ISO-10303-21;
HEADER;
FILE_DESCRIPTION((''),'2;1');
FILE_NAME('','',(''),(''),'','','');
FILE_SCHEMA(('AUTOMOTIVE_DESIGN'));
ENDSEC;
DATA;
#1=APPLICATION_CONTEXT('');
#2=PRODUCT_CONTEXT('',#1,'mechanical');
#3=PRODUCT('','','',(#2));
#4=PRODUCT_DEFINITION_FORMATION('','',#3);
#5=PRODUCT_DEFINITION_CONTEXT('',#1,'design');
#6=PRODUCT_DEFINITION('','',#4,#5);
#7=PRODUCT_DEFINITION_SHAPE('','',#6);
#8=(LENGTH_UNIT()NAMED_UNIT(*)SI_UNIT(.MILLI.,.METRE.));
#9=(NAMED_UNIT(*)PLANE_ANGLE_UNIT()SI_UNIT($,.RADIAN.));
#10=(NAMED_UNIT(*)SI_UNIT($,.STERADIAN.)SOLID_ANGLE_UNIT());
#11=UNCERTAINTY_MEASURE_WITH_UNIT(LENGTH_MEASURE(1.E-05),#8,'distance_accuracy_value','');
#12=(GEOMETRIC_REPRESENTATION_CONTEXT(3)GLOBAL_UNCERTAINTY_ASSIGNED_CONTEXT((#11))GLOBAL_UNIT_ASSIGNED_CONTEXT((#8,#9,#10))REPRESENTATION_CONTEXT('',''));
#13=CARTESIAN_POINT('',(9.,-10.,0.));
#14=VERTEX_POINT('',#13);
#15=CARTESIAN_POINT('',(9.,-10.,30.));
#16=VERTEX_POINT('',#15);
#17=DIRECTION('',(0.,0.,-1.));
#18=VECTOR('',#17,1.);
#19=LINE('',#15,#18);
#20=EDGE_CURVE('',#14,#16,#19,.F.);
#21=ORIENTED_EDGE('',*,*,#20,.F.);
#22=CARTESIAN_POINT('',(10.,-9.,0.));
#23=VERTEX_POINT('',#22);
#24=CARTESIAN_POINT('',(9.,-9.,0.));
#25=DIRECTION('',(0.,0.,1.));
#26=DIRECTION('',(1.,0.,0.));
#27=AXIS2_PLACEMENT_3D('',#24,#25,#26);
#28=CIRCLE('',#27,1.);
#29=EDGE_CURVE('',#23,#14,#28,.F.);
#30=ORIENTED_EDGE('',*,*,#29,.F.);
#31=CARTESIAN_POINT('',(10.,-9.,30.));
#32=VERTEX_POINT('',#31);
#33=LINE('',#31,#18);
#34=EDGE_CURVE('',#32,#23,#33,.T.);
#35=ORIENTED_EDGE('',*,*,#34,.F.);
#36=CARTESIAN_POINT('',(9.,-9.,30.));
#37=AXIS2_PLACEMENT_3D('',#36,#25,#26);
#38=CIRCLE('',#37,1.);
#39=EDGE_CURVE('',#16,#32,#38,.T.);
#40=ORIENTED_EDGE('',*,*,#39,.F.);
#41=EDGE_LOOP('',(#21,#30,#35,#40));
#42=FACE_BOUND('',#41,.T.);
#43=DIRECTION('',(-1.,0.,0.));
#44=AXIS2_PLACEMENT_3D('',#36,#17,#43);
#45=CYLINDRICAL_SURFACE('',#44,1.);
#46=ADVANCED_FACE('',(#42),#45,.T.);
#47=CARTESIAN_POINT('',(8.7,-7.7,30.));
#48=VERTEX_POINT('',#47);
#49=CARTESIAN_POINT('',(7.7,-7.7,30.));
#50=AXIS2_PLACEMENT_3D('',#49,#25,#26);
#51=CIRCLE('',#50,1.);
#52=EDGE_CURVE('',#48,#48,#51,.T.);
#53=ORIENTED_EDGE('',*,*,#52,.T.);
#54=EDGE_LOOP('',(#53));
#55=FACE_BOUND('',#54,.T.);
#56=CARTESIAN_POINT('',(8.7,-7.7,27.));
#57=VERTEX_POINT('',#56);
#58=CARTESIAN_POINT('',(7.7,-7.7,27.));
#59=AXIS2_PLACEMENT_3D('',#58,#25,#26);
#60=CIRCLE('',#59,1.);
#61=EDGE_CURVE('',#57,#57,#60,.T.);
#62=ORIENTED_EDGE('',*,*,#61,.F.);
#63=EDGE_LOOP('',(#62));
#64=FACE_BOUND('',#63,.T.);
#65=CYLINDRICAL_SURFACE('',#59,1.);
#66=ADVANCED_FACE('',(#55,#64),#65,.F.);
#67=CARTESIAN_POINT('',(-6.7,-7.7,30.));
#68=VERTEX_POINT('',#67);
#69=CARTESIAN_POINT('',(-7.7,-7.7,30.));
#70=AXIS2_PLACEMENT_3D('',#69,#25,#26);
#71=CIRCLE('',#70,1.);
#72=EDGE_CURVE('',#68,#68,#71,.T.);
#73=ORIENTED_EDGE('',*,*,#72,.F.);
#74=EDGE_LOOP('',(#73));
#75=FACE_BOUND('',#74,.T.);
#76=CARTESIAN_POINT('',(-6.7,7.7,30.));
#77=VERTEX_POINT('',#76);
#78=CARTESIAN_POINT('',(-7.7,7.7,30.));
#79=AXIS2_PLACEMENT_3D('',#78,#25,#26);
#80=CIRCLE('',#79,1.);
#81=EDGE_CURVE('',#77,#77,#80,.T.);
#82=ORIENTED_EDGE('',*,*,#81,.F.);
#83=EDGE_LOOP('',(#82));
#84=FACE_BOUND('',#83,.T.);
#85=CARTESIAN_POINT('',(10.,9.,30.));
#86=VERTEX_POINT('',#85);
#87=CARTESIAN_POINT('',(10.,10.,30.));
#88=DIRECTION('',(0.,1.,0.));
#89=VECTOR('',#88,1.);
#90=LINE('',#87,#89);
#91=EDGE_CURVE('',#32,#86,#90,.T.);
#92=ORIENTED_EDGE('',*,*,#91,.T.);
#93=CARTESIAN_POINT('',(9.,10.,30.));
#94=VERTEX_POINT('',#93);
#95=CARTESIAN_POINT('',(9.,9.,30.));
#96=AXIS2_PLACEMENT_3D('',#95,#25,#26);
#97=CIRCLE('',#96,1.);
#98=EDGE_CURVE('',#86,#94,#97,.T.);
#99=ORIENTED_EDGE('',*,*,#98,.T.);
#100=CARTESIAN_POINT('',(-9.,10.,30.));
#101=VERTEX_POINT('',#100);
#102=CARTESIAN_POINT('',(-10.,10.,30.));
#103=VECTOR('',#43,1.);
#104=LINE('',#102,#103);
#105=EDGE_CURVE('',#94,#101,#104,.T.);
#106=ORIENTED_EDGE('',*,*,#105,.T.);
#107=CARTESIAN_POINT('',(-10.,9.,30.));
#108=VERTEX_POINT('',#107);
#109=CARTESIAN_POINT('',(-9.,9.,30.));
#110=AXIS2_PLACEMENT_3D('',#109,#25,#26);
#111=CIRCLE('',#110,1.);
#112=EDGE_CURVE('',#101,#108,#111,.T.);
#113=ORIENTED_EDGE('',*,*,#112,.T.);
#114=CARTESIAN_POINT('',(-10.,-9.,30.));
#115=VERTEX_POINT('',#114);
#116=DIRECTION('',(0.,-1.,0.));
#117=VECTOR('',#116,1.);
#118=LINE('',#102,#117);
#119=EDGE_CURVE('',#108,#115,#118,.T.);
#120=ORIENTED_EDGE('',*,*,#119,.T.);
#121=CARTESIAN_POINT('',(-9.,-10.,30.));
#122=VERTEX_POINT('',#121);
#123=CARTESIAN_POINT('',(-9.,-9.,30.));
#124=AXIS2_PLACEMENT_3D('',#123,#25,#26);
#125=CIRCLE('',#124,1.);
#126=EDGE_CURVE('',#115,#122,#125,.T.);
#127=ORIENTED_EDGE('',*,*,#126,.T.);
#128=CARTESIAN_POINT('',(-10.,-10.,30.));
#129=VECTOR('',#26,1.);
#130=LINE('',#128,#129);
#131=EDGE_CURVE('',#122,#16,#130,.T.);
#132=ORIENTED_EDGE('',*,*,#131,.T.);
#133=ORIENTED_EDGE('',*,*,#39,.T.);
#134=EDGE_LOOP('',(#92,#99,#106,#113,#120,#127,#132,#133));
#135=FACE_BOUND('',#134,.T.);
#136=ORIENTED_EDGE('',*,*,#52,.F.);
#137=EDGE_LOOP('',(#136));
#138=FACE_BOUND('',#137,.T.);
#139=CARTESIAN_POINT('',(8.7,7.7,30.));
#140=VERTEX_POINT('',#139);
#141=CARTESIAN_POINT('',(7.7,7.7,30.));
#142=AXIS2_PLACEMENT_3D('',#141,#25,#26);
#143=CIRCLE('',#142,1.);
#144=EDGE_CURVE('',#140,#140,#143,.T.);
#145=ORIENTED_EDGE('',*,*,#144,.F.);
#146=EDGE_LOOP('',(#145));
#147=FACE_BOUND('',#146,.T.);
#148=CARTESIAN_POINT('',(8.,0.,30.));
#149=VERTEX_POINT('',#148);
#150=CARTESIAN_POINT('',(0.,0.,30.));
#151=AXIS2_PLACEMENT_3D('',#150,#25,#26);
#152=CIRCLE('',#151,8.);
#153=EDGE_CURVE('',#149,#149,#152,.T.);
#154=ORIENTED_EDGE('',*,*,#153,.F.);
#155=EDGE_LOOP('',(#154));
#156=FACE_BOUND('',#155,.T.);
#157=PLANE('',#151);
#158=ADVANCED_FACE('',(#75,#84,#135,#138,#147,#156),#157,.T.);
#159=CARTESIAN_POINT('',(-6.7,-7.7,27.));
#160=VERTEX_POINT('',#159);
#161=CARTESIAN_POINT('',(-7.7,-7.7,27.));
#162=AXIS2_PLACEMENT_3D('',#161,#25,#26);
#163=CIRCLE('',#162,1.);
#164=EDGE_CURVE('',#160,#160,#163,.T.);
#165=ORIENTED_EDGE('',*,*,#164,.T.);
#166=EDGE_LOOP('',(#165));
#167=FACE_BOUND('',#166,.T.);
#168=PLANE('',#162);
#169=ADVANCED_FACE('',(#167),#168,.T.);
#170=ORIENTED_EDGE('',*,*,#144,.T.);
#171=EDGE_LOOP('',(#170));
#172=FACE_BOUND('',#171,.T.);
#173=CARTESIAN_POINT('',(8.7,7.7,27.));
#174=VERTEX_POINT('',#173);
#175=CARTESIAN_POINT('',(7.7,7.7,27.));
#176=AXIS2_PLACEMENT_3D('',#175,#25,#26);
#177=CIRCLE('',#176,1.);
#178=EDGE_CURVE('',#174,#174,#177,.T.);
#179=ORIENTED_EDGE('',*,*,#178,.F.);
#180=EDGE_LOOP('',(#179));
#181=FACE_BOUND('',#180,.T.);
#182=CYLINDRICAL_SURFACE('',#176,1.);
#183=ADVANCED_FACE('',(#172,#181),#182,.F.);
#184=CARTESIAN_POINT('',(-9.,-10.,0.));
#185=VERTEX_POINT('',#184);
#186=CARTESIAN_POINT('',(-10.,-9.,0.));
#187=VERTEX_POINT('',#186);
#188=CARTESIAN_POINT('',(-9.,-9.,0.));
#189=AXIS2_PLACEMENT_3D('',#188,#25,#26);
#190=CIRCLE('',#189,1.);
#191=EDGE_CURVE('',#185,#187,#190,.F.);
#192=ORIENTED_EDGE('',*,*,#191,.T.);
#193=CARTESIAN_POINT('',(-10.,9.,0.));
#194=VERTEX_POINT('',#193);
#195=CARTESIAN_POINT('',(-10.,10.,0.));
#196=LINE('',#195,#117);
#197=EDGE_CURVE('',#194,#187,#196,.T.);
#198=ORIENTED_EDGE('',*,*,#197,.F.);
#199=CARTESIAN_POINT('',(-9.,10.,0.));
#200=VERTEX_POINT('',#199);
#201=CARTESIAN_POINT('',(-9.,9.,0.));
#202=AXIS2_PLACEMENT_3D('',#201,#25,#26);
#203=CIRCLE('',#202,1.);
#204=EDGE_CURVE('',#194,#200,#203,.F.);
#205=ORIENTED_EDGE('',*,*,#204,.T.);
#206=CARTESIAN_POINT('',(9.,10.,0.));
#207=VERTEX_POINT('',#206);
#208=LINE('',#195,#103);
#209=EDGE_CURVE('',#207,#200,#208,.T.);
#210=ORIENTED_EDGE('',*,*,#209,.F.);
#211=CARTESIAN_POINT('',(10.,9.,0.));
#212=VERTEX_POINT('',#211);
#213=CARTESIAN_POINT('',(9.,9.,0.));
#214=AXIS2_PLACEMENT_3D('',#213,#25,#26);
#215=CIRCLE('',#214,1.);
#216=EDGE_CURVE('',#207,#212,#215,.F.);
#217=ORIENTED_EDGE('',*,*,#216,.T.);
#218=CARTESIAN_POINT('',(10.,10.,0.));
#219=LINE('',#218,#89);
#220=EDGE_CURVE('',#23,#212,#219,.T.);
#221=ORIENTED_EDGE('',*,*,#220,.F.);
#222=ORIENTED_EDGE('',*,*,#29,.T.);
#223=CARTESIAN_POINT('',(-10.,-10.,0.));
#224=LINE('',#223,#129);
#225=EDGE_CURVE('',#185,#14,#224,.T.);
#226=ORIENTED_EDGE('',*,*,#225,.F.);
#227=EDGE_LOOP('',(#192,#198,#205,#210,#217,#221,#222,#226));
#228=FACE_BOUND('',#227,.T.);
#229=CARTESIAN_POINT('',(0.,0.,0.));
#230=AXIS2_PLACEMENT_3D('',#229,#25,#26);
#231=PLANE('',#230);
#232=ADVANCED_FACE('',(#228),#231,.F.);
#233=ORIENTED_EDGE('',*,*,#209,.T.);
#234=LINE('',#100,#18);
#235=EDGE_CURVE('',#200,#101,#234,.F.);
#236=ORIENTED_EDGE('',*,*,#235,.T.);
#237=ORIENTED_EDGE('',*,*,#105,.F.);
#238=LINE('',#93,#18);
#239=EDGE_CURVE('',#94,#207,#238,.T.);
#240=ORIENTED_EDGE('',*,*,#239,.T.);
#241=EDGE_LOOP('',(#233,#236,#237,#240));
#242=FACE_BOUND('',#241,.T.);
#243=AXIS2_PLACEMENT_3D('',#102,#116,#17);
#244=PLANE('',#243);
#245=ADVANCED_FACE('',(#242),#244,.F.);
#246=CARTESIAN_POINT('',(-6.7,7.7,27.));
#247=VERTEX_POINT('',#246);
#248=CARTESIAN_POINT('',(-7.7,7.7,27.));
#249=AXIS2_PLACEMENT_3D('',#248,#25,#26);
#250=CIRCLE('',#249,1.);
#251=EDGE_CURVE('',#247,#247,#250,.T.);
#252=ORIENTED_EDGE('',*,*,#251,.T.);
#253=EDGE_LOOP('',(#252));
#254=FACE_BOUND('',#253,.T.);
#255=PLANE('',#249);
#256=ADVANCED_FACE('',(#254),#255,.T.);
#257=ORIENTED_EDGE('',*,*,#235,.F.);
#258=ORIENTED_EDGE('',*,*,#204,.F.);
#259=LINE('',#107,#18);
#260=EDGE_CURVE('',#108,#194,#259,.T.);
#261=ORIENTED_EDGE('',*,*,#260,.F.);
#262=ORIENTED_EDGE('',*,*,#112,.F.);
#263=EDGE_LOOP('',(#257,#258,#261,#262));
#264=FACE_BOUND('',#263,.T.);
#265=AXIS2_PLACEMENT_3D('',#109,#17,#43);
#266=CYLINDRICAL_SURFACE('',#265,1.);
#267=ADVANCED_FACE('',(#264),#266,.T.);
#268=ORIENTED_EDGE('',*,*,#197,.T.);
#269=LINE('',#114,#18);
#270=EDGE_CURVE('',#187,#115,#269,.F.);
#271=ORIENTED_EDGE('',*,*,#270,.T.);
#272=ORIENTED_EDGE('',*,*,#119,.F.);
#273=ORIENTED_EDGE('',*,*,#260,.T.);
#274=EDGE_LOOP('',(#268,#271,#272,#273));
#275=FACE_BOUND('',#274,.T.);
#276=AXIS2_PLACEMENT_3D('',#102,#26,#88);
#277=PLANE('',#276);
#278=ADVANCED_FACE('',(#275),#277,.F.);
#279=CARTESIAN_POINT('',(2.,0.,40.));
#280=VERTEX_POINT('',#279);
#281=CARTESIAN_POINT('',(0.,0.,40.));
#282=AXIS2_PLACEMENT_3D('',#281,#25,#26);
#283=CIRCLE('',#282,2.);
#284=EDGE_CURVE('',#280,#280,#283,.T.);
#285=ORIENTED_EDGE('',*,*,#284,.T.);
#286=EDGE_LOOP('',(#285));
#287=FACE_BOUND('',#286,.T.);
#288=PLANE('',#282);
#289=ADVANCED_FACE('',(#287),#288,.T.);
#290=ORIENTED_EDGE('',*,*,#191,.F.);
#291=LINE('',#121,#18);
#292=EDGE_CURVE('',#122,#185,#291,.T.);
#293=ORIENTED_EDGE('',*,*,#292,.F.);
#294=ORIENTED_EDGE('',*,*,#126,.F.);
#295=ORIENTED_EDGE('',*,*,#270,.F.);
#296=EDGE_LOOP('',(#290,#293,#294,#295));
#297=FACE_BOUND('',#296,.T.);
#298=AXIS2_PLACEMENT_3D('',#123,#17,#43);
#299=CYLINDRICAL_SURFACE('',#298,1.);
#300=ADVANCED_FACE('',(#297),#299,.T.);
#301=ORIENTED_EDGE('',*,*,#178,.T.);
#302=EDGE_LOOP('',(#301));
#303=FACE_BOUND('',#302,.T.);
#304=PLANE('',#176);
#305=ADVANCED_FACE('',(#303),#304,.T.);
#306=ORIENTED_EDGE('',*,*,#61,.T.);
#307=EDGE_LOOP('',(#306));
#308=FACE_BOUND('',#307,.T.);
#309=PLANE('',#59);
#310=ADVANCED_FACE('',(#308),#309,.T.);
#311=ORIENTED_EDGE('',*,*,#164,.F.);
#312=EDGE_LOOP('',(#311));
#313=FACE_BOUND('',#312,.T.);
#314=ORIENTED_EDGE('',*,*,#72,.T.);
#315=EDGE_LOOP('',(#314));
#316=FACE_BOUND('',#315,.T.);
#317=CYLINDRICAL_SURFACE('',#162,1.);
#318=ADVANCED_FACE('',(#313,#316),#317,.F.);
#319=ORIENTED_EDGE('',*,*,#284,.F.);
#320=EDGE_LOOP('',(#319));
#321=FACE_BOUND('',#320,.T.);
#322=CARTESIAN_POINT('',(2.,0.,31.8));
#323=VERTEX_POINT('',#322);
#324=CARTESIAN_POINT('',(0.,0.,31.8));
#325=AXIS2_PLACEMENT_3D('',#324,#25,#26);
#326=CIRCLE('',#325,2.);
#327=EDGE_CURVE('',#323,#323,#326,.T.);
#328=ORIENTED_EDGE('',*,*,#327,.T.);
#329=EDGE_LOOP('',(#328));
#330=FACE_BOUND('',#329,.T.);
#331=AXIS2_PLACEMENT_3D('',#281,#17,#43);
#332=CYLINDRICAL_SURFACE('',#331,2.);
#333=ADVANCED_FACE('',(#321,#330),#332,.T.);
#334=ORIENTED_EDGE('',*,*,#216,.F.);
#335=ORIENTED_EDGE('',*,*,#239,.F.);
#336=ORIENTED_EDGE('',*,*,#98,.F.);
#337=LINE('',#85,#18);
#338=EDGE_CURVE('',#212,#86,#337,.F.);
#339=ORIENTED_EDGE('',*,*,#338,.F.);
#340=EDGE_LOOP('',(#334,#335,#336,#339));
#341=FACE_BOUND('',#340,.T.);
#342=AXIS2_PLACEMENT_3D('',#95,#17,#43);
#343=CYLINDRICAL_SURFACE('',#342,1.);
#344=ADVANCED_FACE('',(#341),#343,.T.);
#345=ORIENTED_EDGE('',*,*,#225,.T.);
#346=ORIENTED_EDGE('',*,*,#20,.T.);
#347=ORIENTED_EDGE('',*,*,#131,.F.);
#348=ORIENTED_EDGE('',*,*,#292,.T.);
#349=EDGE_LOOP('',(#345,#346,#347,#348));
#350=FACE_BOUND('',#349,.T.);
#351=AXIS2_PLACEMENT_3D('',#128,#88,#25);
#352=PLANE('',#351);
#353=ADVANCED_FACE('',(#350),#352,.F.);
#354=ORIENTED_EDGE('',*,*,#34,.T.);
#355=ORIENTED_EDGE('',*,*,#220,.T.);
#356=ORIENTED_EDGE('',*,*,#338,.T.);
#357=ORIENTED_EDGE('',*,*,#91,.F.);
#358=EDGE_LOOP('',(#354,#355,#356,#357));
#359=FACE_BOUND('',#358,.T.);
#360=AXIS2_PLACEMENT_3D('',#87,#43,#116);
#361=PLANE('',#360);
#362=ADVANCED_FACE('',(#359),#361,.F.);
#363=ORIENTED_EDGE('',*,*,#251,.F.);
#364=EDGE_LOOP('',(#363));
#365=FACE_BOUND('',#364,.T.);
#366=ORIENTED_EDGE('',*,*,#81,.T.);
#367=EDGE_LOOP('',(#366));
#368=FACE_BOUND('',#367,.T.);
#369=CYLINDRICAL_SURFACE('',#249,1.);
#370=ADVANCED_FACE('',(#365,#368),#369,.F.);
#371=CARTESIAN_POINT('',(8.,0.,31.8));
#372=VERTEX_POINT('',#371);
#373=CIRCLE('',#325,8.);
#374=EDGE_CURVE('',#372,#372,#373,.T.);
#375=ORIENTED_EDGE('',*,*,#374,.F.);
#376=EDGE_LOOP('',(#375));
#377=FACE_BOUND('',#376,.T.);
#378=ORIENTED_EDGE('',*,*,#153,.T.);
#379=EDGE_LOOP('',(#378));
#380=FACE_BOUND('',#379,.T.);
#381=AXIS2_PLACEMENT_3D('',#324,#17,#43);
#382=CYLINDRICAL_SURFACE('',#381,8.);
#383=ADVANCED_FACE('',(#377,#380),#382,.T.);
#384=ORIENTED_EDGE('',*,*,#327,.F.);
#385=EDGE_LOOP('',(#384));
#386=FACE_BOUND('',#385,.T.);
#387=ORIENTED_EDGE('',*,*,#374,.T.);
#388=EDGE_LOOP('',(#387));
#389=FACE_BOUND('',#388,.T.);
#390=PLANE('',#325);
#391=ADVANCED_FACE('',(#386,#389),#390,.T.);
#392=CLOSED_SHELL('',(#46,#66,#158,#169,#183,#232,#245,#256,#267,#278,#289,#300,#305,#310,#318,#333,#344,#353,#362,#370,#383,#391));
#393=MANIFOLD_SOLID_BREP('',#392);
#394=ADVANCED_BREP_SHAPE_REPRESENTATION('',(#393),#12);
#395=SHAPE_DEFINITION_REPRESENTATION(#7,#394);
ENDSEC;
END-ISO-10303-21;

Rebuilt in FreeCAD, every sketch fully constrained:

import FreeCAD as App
import Part
import Sketcher
from FreeCAD import Vector
Q = App.Units.Quantity


def edges_at(feature, points):
    """Names of the edges that pass closest to the given points."""
    edges = feature.Shape.Edges
    near = lambda p: min(range(len(edges)), key=lambda i: edges[i].distToShape(Part.Vertex(*p))[0])
    return sorted({f"Edge{near(p) + 1}" for p in points})

doc = App.newDocument("Part")
body = doc.addObject("PartDesign::Body", "Body")

sketch1 = body.newObject("Sketcher::SketchObject", "Sketch")
sketch1.AttachmentSupport = (doc.getObject("XY_Plane"), [""])
sketch1.MapMode = "FlatFace"
sketch1.addGeometry(Part.LineSegment(Vector(-10, 10, 0), Vector(-10, -10, 0)), False)
sketch1.addGeometry(Part.LineSegment(Vector(-10, -10, 0), Vector(10, -10, 0)), False)
sketch1.addGeometry(Part.LineSegment(Vector(10, -10, 0), Vector(10, 10, 0)), False)
sketch1.addGeometry(Part.LineSegment(Vector(10, 10, 0), Vector(-10, 10, 0)), False)
sketch1.addConstraint(Sketcher.Constraint("Coincident", 0, 2, 1, 1))
sketch1.addConstraint(Sketcher.Constraint("Coincident", 1, 2, 2, 1))
sketch1.addConstraint(Sketcher.Constraint("Coincident", 2, 2, 3, 1))
sketch1.addConstraint(Sketcher.Constraint("Coincident", 3, 2, 0, 1))
sketch1.addConstraint(Sketcher.Constraint("Vertical", 0))
sketch1.addConstraint(Sketcher.Constraint("Horizontal", 1))
sketch1.addConstraint(Sketcher.Constraint("Vertical", 2))
sketch1.addConstraint(Sketcher.Constraint("Horizontal", 3))
sketch1.addConstraint(Sketcher.Constraint("Symmetric", 0, 2, 2, 2, -1, 1))
sketch1.addConstraint(Sketcher.Constraint("Equal", 3, 0))
sketch1.addConstraint(Sketcher.Constraint("DistanceX", 1, 1, 1, 2, Q("20 mm")))
pad1 = body.newObject("PartDesign::Pad", "Pad")
pad1.Profile = sketch1
pad1.Length = 30
doc.recompute()

fillet = body.newObject("PartDesign::Fillet", "Fillet")
fillet.Base = (pad1, edges_at(pad1, [
    (10, -10, 15),
    (-10, -10, 15),
    (-10, 10, 15),
    (10, 10, 15),
]))
fillet.Radius = 1

sketch2 = body.newObject("Sketcher::SketchObject", "Sketch001")
sketch2.AttachmentSupport = (doc.getObject("XY_Plane"), [""])
sketch2.MapMode = "FlatFace"
sketch2.AttachmentOffset = App.Placement(Vector(0, 0, 30), App.Rotation())
sketch2.addGeometry(Part.Circle(Vector(0, 0, 0), Vector(0, 0, 1), 8), False)
sketch2.addConstraint(Sketcher.Constraint("Coincident", 0, 3, -1, 1))
sketch2.addConstraint(Sketcher.Constraint("Diameter", 0, Q("16 mm")))
pad2 = body.newObject("PartDesign::Pad", "Pad001")
pad2.Profile = sketch2
pad2.Length = 1.8

sketch3 = body.newObject("Sketcher::SketchObject", "Sketch002")
sketch3.AttachmentSupport = (doc.getObject("XY_Plane"), [""])
sketch3.MapMode = "FlatFace"
sketch3.AttachmentOffset = App.Placement(Vector(0, 0, 31.8), App.Rotation())
sketch3.addGeometry(Part.Circle(Vector(0, 0, 0), Vector(0, 0, 1), 2), False)
sketch3.addConstraint(Sketcher.Constraint("Coincident", 0, 3, -1, 1))
sketch3.addConstraint(Sketcher.Constraint("Diameter", 0, Q("4 mm")))
pad3 = body.newObject("PartDesign::Pad", "Pad002")
pad3.Profile = sketch3
pad3.Length = 8.2

sketch4 = body.newObject("Sketcher::SketchObject", "Sketch003")
sketch4.AttachmentSupport = (doc.getObject("XY_Plane"), [""])
sketch4.MapMode = "FlatFace"
sketch4.AttachmentOffset = App.Placement(Vector(0, 0, 30), App.Rotation())
sketch4.addGeometry(Part.Circle(Vector(-7.7, 7.7, 0), Vector(0, 0, 1), 1), False)
sketch4.addGeometry(Part.Circle(Vector(7.7, 7.7, 0), Vector(0, 0, 1), 1), False)
sketch4.addGeometry(Part.Circle(Vector(7.7, -7.7, 0), Vector(0, 0, 1), 1), False)
sketch4.addGeometry(Part.Circle(Vector(-7.7, -7.7, 0), Vector(0, 0, 1), 1), False)
sketch4.addConstraint(Sketcher.Constraint("Equal", 0, 1))
sketch4.addConstraint(Sketcher.Constraint("Equal", 1, 2))
sketch4.addConstraint(Sketcher.Constraint("Equal", 2, 3))
sketch4.addConstraint(Sketcher.Constraint("Symmetric", 0, 3, 2, 3, -1, 1))
sketch4.addConstraint(Sketcher.Constraint("Symmetric", 1, 3, 3, 3, -1, 1))
sketch4.addConstraint(Sketcher.Constraint("Symmetric", 0, 3, 1, 3, -2))
sketch4.addConstraint(Sketcher.Constraint("Diameter", 0, Q("2 mm")))
sketch4.addConstraint(Sketcher.Constraint("DistanceX", 0, 3, -1, 1, Q("7.7 mm")))
sketch4.addConstraint(Sketcher.Constraint("DistanceY", -1, 1, 0, 3, Q("7.7 mm")))
pocket1 = body.newObject("PartDesign::Pocket", "Pocket")
pocket1.Profile = sketch4
pocket1.Length = 3

doc.recompute()
